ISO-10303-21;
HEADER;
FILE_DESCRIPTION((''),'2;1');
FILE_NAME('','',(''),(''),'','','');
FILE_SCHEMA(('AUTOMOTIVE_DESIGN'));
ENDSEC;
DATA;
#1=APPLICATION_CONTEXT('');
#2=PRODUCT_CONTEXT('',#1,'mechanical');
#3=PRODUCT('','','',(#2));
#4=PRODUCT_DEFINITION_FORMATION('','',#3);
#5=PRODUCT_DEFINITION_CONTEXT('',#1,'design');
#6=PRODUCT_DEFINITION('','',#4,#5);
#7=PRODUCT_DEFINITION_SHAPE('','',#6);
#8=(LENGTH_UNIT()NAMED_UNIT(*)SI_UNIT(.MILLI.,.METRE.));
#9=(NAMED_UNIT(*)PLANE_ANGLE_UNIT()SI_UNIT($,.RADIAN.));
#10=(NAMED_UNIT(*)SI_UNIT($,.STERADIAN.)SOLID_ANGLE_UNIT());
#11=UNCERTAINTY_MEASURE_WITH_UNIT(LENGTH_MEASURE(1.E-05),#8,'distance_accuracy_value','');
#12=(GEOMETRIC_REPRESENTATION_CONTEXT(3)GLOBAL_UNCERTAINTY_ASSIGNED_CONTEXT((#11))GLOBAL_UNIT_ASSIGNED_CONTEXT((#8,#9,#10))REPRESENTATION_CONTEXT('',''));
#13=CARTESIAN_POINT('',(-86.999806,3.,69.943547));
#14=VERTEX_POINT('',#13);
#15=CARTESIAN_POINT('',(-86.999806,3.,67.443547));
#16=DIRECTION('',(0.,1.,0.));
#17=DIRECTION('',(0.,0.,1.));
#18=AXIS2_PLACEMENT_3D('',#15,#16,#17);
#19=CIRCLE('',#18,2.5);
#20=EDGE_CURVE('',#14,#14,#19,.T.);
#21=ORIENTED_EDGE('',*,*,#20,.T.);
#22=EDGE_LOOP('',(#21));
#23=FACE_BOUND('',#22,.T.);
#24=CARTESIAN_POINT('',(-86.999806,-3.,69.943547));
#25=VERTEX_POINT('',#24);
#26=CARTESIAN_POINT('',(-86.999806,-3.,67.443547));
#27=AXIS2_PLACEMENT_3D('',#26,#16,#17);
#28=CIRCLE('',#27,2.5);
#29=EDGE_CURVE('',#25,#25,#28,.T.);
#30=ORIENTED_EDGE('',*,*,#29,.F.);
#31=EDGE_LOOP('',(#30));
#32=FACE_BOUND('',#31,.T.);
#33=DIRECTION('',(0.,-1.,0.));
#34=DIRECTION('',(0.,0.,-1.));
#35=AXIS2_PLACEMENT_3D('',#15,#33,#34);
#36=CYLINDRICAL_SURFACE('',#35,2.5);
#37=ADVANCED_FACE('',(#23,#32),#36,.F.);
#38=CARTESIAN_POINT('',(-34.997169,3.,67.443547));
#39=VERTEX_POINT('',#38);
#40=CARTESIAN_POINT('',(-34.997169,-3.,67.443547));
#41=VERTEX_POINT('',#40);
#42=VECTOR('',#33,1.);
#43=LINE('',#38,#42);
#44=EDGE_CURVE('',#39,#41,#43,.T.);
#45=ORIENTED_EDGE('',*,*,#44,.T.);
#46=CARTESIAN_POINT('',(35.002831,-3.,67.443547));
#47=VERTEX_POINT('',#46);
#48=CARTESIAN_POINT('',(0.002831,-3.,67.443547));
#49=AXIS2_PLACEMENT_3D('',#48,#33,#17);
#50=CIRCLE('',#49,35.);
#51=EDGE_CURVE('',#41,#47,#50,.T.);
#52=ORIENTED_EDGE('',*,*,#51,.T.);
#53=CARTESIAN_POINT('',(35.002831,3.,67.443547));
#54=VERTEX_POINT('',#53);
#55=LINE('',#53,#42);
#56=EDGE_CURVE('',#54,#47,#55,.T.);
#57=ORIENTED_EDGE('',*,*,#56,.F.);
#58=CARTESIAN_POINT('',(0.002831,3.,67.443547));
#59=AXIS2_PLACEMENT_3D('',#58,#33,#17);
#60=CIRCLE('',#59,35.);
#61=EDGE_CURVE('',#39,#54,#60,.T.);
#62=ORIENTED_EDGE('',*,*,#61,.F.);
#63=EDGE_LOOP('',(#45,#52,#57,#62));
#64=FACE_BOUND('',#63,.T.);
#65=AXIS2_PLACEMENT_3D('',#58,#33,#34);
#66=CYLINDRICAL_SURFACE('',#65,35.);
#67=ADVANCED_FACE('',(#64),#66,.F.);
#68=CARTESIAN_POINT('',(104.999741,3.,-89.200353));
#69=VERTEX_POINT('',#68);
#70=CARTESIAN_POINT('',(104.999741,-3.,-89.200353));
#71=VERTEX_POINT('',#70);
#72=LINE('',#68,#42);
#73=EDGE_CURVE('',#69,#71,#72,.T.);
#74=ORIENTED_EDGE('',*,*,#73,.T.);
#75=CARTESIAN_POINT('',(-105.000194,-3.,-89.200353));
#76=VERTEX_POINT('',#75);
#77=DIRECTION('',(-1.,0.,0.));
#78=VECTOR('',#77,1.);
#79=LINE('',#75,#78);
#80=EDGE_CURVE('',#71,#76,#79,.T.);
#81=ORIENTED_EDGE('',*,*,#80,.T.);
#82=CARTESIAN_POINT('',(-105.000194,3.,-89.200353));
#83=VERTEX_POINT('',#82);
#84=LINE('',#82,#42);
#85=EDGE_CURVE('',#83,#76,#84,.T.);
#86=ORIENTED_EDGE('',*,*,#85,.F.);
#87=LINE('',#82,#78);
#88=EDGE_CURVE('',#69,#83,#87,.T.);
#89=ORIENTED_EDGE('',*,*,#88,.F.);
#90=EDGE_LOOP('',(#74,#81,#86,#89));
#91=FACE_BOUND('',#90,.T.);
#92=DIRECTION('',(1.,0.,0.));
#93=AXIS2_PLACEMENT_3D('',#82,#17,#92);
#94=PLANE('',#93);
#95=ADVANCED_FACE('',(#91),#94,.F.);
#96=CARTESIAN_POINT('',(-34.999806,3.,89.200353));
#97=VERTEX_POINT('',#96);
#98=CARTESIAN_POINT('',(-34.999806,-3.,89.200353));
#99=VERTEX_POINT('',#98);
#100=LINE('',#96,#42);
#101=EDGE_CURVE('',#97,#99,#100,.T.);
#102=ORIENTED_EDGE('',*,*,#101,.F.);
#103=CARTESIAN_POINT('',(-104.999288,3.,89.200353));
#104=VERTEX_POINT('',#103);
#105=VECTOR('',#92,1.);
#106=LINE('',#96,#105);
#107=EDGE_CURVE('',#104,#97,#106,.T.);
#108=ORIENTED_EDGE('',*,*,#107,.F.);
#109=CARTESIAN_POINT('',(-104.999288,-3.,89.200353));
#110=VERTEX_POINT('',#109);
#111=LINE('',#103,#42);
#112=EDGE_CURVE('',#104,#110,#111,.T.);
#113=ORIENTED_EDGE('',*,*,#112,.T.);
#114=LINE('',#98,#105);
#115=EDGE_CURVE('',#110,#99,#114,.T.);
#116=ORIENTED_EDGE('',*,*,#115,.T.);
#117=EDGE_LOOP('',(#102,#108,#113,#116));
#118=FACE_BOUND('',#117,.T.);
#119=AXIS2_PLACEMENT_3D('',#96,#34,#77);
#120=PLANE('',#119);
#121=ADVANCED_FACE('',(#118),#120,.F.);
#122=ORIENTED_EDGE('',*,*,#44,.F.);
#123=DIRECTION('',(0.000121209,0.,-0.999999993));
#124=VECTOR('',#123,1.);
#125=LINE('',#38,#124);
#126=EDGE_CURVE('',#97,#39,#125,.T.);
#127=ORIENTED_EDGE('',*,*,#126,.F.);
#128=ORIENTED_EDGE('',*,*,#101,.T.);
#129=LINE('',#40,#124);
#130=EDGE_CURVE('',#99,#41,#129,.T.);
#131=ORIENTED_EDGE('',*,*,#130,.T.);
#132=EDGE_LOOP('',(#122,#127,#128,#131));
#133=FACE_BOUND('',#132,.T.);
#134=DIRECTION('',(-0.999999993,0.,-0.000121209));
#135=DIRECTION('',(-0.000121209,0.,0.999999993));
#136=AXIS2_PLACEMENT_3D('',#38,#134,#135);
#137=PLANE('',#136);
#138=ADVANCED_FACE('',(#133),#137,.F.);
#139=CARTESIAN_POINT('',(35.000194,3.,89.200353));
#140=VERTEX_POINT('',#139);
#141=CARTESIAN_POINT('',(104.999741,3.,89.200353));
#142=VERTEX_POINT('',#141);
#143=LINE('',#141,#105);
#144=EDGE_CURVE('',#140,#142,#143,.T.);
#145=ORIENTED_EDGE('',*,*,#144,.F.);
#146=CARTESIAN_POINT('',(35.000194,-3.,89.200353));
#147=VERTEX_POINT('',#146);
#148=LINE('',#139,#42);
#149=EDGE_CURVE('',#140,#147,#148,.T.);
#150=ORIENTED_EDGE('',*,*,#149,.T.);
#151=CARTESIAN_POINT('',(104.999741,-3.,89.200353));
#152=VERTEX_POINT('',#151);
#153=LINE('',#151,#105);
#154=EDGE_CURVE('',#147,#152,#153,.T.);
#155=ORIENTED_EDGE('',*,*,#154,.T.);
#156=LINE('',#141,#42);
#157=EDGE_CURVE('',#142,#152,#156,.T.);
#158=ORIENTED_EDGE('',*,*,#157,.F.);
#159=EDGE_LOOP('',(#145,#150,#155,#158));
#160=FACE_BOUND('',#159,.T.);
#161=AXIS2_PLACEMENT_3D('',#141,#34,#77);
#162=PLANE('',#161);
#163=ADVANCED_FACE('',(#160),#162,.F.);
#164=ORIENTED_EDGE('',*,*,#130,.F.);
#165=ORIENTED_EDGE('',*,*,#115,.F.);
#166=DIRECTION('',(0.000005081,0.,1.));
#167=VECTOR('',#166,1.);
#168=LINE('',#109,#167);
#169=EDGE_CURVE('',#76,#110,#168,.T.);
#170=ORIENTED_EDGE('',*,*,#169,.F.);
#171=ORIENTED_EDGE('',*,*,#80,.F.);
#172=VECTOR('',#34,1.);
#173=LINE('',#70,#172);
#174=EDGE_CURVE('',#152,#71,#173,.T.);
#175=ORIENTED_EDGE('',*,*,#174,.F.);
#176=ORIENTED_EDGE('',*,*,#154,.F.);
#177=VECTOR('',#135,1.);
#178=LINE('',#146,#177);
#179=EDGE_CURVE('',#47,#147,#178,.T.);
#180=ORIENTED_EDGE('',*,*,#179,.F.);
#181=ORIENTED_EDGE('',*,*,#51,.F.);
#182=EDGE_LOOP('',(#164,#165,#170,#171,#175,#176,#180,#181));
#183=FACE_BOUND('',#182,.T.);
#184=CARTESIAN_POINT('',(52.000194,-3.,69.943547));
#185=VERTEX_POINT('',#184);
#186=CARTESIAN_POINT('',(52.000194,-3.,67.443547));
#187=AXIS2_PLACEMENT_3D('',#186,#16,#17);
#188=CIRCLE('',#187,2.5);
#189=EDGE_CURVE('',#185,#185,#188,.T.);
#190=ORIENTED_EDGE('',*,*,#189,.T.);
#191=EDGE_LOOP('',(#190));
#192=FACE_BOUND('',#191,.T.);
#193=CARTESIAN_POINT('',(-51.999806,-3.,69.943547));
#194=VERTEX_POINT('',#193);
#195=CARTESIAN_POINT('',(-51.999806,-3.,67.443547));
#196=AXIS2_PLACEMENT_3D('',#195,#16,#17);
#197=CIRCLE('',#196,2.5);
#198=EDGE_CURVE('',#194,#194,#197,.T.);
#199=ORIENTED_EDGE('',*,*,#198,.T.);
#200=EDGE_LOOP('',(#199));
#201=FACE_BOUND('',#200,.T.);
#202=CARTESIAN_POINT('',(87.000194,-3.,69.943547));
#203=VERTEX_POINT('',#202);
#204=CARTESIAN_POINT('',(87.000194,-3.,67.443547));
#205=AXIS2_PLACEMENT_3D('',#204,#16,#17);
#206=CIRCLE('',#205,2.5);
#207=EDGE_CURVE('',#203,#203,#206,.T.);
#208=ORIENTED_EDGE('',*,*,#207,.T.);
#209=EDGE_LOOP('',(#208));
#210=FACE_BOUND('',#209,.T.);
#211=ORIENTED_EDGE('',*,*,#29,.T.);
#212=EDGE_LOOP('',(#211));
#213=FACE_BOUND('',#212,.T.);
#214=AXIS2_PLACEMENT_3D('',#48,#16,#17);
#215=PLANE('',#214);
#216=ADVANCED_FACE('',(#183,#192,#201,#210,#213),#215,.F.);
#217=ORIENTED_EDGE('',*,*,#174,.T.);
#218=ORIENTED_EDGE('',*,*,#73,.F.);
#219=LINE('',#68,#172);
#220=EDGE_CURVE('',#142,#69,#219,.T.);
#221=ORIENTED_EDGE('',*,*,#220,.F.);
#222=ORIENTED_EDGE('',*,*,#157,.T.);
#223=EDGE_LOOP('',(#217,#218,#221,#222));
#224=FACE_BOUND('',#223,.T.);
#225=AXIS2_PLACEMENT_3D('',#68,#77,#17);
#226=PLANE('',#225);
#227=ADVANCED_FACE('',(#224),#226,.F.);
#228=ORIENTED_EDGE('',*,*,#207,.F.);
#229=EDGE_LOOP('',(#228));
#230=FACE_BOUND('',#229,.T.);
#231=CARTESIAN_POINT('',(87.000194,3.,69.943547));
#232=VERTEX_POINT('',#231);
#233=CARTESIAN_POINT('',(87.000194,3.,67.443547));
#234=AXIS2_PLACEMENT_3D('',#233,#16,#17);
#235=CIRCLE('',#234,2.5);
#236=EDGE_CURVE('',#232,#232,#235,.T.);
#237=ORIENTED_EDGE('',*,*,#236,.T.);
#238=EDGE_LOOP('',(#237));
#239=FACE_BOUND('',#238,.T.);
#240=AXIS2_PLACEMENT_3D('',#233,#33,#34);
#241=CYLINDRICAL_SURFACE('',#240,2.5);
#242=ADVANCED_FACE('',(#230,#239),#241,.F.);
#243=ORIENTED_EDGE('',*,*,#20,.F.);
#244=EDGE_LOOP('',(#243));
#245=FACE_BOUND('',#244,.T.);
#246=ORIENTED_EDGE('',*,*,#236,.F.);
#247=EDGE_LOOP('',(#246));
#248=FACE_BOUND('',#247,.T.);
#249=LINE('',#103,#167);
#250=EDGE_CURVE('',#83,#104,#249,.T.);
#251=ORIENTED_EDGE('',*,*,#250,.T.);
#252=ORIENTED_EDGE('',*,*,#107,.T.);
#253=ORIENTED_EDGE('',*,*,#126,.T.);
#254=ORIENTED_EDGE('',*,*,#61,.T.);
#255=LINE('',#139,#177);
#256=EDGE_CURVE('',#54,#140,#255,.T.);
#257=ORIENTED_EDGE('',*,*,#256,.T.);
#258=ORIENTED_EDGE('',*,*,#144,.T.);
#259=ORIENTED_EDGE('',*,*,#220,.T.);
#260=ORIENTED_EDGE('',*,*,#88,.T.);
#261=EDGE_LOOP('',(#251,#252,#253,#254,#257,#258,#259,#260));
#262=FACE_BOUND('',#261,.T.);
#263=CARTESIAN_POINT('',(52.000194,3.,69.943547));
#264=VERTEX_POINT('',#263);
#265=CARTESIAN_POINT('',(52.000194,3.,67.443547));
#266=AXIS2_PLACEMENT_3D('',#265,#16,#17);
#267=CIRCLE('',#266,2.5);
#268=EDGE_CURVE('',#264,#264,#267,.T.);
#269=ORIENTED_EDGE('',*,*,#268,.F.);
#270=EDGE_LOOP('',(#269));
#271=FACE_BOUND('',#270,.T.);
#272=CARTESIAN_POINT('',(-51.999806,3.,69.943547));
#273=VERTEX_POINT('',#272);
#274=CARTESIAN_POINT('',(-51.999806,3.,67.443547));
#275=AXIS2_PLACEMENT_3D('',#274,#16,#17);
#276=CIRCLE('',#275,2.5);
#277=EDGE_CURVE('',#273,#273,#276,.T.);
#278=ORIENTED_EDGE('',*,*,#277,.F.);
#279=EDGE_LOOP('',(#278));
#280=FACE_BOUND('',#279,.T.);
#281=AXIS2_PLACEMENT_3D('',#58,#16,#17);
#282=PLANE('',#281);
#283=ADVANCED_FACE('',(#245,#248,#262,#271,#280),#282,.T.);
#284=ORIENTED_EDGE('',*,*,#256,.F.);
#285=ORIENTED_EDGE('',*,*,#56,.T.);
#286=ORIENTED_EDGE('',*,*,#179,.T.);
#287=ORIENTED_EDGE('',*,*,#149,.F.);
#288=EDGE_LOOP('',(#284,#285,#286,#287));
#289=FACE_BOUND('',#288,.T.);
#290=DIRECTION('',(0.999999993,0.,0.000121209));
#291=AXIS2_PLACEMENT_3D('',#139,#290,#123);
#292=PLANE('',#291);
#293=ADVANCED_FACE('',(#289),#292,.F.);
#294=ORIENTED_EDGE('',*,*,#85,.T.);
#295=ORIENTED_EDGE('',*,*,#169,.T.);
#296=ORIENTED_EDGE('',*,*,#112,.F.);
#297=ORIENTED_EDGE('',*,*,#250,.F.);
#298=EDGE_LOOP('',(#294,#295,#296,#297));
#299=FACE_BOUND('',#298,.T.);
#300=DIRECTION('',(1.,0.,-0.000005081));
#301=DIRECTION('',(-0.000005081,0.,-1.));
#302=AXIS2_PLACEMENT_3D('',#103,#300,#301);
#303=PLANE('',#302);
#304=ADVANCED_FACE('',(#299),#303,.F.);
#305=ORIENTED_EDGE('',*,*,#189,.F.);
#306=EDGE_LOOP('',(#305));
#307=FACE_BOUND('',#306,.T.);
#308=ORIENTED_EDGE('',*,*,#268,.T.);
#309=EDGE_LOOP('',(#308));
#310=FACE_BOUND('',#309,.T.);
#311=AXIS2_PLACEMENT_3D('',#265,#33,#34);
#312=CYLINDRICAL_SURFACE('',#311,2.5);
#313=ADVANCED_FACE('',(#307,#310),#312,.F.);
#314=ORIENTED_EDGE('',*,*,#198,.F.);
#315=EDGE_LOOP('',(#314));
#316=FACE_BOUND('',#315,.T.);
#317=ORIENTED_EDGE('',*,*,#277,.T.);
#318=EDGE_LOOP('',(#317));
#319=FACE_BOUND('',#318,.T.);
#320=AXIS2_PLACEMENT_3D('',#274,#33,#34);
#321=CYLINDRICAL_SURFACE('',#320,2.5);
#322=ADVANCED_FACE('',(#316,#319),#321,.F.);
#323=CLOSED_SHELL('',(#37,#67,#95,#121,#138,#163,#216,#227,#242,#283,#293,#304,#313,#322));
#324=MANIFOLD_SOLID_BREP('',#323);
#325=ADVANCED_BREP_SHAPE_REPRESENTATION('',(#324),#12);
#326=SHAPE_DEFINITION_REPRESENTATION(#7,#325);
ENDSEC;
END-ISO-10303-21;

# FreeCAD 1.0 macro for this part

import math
import FreeCAD as App
import Part
import Sketcher
from FreeCAD import Vector
Q = App.Units.Quantity

doc = App.newDocument("Part")
body = doc.addObject("PartDesign::Body", "Body")

sketch1 = doc.addObject("Sketcher::SketchObject", "Sketch")
body.addObject(sketch1)
sketch1.AttachmentSupport = (doc.XZ_Plane, [""])
sketch1.MapMode = "FlatFace"
sketch1.addGeometry(Part.LineSegment(Vector(-35, 89.2, 0), Vector(-35, 67.4, 0)), False)
sketch1.addGeometry(Part.ArcOfCircle(Part.Circle(Vector(0, 67.4, 0), Vector(0, 0, 1), 35), math.radians(180), math.radians(360)), False)
sketch1.addGeometry(Part.LineSegment(Vector(35, 67.4, 0), Vector(35, 89.2, 0)), False)
sketch1.addGeometry(Part.LineSegment(Vector(35, 89.2, 0), Vector(105, 89.2, 0)), False)
sketch1.addGeometry(Part.LineSegment(Vector(105, 89.2, 0), Vector(105, -89.2, 0)), False)
sketch1.addGeometry(Part.LineSegment(Vector(105, -89.2, 0), Vector(-105, -89.2, 0)), False)
sketch1.addGeometry(Part.LineSegment(Vector(-105, -89.2, 0), Vector(-105, 89.2, 0)), False)
sketch1.addGeometry(Part.LineSegment(Vector(-105, 89.2, 0), Vector(-35, 89.2, 0)), False)
sketch1.addGeometry(Part.Circle(Vector(87, 67.4, 0), Vector(0, 0, 1), 2.5), False)
sketch1.addGeometry(Part.Circle(Vector(52, 67.4, 0), Vector(0, 0, 1), 2.5), False)
sketch1.addGeometry(Part.Circle(Vector(-52, 67.4, 0), Vector(0, 0, 1), 2.5), False)
sketch1.addGeometry(Part.Circle(Vector(-87, 67.4, 0), Vector(0, 0, 1), 2.5), False)
sketch1.addConstraint(Sketcher.Constraint("Coincident", 0, 2, 1, 1))
sketch1.addConstraint(Sketcher.Constraint("Coincident", 1, 2, 2, 1))
sketch1.addConstraint(Sketcher.Constraint("Coincident", 2, 2, 3, 1))
sketch1.addConstraint(Sketcher.Constraint("Coincident", 3, 2, 4, 1))
sketch1.addConstraint(Sketcher.Constraint("Coincident", 4, 2, 5, 1))
sketch1.addConstraint(Sketcher.Constraint("Coincident", 5, 2, 6, 1))
sketch1.addConstraint(Sketcher.Constraint("Coincident", 6, 2, 7, 1))
sketch1.addConstraint(Sketcher.Constraint("Coincident", 7, 2, 0, 1))
sketch1.addConstraint(Sketcher.Constraint("Horizontal", 3))
sketch1.addConstraint(Sketcher.Constraint("Vertical", 4))
sketch1.addConstraint(Sketcher.Constraint("Horizontal", 5))
sketch1.addConstraint(Sketcher.Constraint("Horizontal", 7))
sketch1.addConstraint(Sketcher.Constraint("Equal", 8, 9))
sketch1.addConstraint(Sketcher.Constraint("Equal", 9, 10))
sketch1.addConstraint(Sketcher.Constraint("Equal", 10, 11))
sketch1.addConstraint(Sketcher.Constraint("Parallel", 0, 2))
sketch1.addConstraint(Sketcher.Constraint("Horizontal", 1, 3, 8, 3))
sketch1.addConstraint(Sketcher.Constraint("Horizontal", 8, 3, 9, 3))
sketch1.addConstraint(Sketcher.Constraint("Horizontal", 9, 3, 10, 3))
sketch1.addConstraint(Sketcher.Constraint("Horizontal", 10, 3, 11, 3))
sketch1.addConstraint(Sketcher.Constraint("Horizontal", 11, 3, 0, 2))
sketch1.addConstraint(Sketcher.Constraint("Horizontal", 0, 2, 1, 2))
sketch1.addConstraint(Sketcher.Constraint("Horizontal", 3, 2, 6, 2))
sketch1.addConstraint(Sketcher.Constraint("Diameter", 8, Q("5 mm")))
sketch1.addConstraint(Sketcher.Constraint("Radius", 1, Q("35 mm")))
sketch1.addConstraint(Sketcher.Constraint("DistanceX", 9, 3, 8, 3, Q("35 mm")))
sketch1.addConstraint(Sketcher.Constraint("DistanceX", 10, 3, 9, 3, Q("104 mm")))
sketch1.addConstraint(Sketcher.Constraint("DistanceX", 11, 3, 10, 3, Q("35 mm")))
sketch1.addConstraint(Sketcher.Constraint("DistanceX", 2, 2, 9, 3, Q("17 mm")))
sketch1.addConstraint(Sketcher.Constraint("DistanceX", 7, 1, 7, 2, Q("69.999482 mm")))
sketch1.addConstraint(Sketcher.Constraint("DistanceY", 4, 2, 8, 3, Q("156.6439 mm")))
sketch1.addConstraint(Sketcher.Constraint("DistanceX", 3, 1, 3, 2, Q("69.999547 mm")))
sketch1.addConstraint(Sketcher.Constraint("DistanceX", 5, 2, 5, 1, Q("209.999935 mm")))
sketch1.addConstraint(Sketcher.Constraint("DistanceY", 4, 2, 4, 1, Q("178.400707 mm")))
sketch1.addConstraint(Sketcher.Constraint("DistanceX", -1, 1, 1, 3, Q("0.002831 mm")))
sketch1.addConstraint(Sketcher.Constraint("DistanceX", -1, 1, 3, 2, Q("104.999741 mm")))
sketch1.addConstraint(Sketcher.Constraint("DistanceY", -1, 1, 1, 3, Q("67.443547 mm")))
pad1 = doc.addObject("PartDesign::Pad", "Pad")
body.addObject(pad1)
pad1.Profile = sketch1
pad1.Length = 6
pad1.Midplane = True

doc.recompute()
